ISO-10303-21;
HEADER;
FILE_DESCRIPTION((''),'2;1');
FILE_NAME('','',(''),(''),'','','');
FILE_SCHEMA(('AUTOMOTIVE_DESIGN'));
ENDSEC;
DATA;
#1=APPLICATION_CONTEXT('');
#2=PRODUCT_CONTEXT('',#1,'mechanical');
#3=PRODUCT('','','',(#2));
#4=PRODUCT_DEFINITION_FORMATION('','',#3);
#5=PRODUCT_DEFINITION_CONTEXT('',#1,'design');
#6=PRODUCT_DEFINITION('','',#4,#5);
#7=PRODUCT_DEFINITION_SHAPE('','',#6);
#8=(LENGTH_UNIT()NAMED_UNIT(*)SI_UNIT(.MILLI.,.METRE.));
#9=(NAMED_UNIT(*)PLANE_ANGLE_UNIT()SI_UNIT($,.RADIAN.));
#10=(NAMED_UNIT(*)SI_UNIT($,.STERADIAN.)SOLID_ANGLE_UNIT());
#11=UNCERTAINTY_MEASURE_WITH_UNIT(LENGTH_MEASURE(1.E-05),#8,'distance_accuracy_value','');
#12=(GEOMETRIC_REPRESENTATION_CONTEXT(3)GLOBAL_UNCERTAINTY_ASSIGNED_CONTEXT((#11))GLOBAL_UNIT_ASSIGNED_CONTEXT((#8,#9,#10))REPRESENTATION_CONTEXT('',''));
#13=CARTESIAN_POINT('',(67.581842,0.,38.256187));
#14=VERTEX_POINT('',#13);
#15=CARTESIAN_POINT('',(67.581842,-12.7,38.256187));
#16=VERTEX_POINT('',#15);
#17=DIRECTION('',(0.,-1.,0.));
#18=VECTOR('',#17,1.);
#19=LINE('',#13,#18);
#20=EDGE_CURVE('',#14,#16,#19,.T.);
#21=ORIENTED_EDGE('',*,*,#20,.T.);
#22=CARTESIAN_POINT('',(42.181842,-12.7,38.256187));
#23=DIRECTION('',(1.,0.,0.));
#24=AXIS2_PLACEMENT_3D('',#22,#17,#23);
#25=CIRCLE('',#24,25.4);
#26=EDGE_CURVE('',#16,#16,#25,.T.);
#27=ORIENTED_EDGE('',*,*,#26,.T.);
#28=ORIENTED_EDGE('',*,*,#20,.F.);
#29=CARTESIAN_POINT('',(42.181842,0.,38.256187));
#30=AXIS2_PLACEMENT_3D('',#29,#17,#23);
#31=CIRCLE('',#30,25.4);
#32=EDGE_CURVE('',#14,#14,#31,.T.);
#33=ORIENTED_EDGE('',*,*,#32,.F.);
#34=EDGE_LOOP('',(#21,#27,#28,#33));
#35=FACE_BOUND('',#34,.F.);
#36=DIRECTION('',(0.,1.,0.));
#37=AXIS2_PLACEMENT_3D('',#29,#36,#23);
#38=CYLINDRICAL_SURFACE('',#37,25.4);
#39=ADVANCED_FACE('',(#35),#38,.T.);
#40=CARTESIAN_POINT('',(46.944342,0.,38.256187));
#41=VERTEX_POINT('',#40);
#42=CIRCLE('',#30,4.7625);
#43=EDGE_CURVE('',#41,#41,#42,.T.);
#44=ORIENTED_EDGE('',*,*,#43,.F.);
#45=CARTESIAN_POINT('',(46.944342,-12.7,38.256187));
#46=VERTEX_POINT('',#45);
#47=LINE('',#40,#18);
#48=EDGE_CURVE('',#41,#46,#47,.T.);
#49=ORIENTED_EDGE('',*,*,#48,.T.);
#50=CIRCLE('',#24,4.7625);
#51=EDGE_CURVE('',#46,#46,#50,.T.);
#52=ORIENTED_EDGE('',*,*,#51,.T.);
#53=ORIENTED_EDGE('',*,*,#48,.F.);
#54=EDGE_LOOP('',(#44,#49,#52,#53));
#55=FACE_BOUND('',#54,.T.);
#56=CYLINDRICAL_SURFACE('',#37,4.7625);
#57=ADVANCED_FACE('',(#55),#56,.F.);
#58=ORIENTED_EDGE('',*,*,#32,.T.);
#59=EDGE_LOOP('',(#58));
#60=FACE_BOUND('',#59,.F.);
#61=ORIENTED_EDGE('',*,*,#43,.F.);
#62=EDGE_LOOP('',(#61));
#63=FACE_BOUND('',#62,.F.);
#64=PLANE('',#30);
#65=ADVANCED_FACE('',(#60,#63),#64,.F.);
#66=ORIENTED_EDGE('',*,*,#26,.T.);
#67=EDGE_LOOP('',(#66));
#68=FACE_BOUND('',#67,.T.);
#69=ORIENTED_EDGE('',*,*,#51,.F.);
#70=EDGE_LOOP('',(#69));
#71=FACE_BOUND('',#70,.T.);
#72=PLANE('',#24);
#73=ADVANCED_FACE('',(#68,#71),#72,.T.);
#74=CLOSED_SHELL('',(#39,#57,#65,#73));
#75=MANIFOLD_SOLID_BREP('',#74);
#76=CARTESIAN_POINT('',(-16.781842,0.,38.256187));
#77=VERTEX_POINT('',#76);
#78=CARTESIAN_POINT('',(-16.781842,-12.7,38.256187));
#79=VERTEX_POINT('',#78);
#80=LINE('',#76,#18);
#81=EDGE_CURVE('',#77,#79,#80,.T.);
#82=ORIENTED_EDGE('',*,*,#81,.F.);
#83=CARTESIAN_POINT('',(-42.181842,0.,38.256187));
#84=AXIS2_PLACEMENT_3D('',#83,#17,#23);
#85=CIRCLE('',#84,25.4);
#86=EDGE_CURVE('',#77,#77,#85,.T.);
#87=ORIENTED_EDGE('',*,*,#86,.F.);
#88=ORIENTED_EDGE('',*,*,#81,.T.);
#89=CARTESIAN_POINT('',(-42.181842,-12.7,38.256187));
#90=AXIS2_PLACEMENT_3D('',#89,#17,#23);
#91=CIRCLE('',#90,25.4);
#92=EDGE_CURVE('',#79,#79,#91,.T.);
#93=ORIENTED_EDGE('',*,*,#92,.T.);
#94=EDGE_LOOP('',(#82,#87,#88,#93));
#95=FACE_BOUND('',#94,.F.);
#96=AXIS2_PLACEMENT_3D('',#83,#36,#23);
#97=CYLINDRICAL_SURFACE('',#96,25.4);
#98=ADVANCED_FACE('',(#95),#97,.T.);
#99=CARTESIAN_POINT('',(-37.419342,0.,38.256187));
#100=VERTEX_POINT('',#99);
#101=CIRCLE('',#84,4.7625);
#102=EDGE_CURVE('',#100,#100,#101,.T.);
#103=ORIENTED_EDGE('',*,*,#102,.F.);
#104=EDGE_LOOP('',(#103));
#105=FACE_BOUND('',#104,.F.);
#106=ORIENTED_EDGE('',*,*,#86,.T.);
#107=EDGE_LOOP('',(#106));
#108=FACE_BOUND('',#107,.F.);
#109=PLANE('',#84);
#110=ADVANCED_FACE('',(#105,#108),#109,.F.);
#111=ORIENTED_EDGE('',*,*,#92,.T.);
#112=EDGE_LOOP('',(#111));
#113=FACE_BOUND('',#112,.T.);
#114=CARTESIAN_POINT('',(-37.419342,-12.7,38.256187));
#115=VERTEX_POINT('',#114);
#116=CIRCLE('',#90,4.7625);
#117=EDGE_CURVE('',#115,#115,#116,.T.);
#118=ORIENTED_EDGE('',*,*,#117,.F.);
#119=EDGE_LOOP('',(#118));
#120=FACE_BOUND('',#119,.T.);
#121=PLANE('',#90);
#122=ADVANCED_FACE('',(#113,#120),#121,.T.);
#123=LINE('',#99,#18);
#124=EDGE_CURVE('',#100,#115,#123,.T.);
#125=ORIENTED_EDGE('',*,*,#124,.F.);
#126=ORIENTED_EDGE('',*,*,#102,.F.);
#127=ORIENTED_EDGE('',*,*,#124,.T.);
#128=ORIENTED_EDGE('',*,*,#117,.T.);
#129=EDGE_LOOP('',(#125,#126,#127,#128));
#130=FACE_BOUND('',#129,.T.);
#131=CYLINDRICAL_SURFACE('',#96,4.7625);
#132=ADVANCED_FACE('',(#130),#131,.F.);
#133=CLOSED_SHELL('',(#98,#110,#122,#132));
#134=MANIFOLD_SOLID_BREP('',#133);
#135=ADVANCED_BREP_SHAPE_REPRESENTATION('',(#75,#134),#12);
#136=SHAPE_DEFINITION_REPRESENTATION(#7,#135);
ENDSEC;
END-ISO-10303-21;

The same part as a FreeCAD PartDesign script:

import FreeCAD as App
import Part
import Sketcher
Q = App.Units.Quantity

doc = App.newDocument("Part")
body = doc.addObject("PartDesign::Body", "Body")
body.AllowCompound = True

sketch1 = body.newObject("Sketcher::SketchObject", "Sketch")
sketch1.AttachmentSupport = (doc.getObject("XZ_Plane"), [""])
sketch1.MapMode = "FlatFace"
sketch1.addGeometry([
    Part.Circle(App.Vector(-42.2, 38.3, 0), App.Vector(0, 0, 1), 25.4),
    Part.Circle(App.Vector(-42.2, 38.3, 0), App.Vector(0, 0, 1), 4.8),
    Part.Circle(App.Vector(42.2, 38.3, 0), App.Vector(0, 0, 1), 25.4),
    Part.Circle(App.Vector(42.2, 38.3, 0), App.Vector(0, 0, 1), 4.8),
], False)
sketch1.addConstraint([
    Sketcher.Constraint("Coincident", 1, 3, 0, 3),
    Sketcher.Constraint("Coincident", 3, 3, 2, 3),
    Sketcher.Constraint("Equal", 0, 2),
    Sketcher.Constraint("Equal", 1, 3),
    Sketcher.Constraint("Symmetric", 0, 3, 2, 3, -2),
    Sketcher.Constraint("Diameter", 0, Q("2 in")),
    Sketcher.Constraint("Diameter", 1, Q("0.375 in")),
    Sketcher.Constraint("DistanceX", 0, 3, -1, 1, Q("42.181842 mm")),
    Sketcher.Constraint("DistanceY", -1, 1, 0, 3, Q("38.256187 mm")),
])
pad1 = body.newObject("PartDesign::Pad", "Pad")
pad1.Profile = sketch1
pad1.Length = Q("0.5 in")

doc.recompute()
